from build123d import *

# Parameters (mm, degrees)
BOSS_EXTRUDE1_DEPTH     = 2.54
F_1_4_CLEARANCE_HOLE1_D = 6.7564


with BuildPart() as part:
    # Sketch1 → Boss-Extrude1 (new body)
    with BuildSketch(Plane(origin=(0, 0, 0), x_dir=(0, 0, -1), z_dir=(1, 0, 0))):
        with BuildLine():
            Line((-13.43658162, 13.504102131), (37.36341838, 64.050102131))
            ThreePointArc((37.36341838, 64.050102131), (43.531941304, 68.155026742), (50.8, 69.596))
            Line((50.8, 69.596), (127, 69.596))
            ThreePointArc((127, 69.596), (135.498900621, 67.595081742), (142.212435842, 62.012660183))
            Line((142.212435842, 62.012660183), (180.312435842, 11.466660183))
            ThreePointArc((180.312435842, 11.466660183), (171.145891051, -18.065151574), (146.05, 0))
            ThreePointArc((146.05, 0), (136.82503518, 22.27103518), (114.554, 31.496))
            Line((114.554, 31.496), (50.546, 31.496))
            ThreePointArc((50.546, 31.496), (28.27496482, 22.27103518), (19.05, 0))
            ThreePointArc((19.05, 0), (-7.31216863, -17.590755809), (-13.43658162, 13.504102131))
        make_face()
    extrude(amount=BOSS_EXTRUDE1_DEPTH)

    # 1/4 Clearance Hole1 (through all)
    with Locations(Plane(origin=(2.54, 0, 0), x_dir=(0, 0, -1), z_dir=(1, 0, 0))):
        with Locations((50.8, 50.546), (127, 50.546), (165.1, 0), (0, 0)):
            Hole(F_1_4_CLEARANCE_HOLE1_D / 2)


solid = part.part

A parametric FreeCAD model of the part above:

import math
import FreeCAD as App
import Part
import Sketcher

V = App.Vector
Q = App.Units.Quantity

doc = App.newDocument("Part")
body = doc.addObject("PartDesign::Body", "Body")

# Sketch on YZ plane
sketch1 = body.newObject("Sketcher::SketchObject", "Sketch")
sketch1.AttachmentSupport = (doc.getObject("YZ_Plane"), [""])
sketch1.MapMode = "FlatFace"
sketch1.addGeometry([
    Part.LineSegment(V(64.050102, -37.363418, 0), V(13.504102, 13.436582, 0)),  # 0
    Part.ArcOfCircle(Part.Circle(V(0, 0, 0), V(0, 0, 1), 19.05), math.radians(44.856402), math.radians(270)),  # 1
    Part.ArcOfCircle(Part.Circle(V(0, -50.546, 0), V(0, 0, 1), 31.496), math.radians(0), math.radians(90)),  # 2
    Part.LineSegment(V(31.496, -50.546, 0), V(31.496, -114.554, 0)),  # 3
    Part.ArcOfCircle(Part.Circle(V(0, -114.554, 0), V(0, 0, 1), 31.496), math.radians(-90), math.radians(0)),  # 4
    Part.ArcOfCircle(Part.Circle(V(0, -165.1, 0), V(0, 0, 1), 19.05), math.radians(90), math.radians(307.007849)),  # 5
    Part.LineSegment(V(11.46666, -180.312436, 0), V(62.01266, -142.212436, 0)),  # 6
    Part.ArcOfCircle(Part.Circle(V(50.546, -127, 0), V(0, 0, 1), 19.05), math.radians(-52.992151), math.radians(0)),  # 7
    Part.LineSegment(V(69.596, -127, 0), V(69.596, -50.8, 0)),  # 8
    Part.ArcOfCircle(Part.Circle(V(50.546, -50.8, 0), V(0, 0, 1), 19.05), math.radians(0), math.radians(44.856402)),  # 9
], False)
sketch1.addConstraint([
    Sketcher.Constraint("Tangent", 0, 2, 1, 1),
    Sketcher.Constraint("Tangent", 1, 2, 2, 2),
    Sketcher.Constraint("Tangent", 2, 1, 3, 1),
    Sketcher.Constraint("Tangent", 3, 2, 4, 2),
    Sketcher.Constraint("Tangent", 4, 1, 5, 1),
    Sketcher.Constraint("Tangent", 5, 2, 6, 1),
    Sketcher.Constraint("Tangent", 6, 2, 7, 1),
    Sketcher.Constraint("Tangent", 7, 2, 8, 1),
    Sketcher.Constraint("Tangent", 8, 2, 9, 1),
    Sketcher.Constraint("Tangent", 9, 2, 0, 1),
    Sketcher.Constraint("Vertical", 3),
    Sketcher.Constraint("Vertical", 8),
    Sketcher.Constraint("Coincident", 1, 3, -1, 1),
    Sketcher.Constraint("Equal", 2, 4),
    Sketcher.Constraint("Equal", 1, 5),
    Sketcher.Constraint("Equal", 5, 7),
    Sketcher.Constraint("Equal", 7, 9),
    Sketcher.Constraint("PointOnObject", 2, 3, -2),
    Sketcher.Constraint("PointOnObject", 5, 3, -2),
    Sketcher.Constraint("DistanceY", 8, 1, 8, 2, Q("3 in")),
    Sketcher.Constraint("Radius", 1, Q("0.75 in")),
    Sketcher.Constraint("Radius", 2, Q("1.24 in")),
    Sketcher.Constraint("DistanceY", 7, 3, -1, 1, Q("5 in")),
    Sketcher.Constraint("DistanceY", 3, 2, 3, 1, Q("2.52 in")),
    Sketcher.Constraint("DistanceX", 3, 2, 7, 2, Q("1.5 in")),
])
pad1 = body.newObject("PartDesign::Pad", "Pad")
pad1.Profile = sketch1
pad1.Length = Q("0.1 in")

# Sketch on YZ plane
sketch2 = body.newObject("Sketcher::SketchObject", "Sketch001")
sketch2.AttachmentSupport = (doc.getObject("YZ_Plane"), [""])
sketch2.MapMode = "FlatFace"
sketch2.AttachmentOffset = App.Placement(V(0, 0, 0.1 * 25.4), App.Rotation())
sketch2.addGeometry([
    Part.Circle(V(50.546, -50.8, 0), V(0, 0, 1), 3.3782),
    Part.Circle(V(50.546, -127, 0), V(0, 0, 1), 3.3782),
    Part.Circle(V(0, -165.1, 0), V(0, 0, 1), 3.3782),
    Part.Circle(V(0, 0, 0), V(0, 0, 1), 3.3782),
], False)
sketch2.addConstraint([
    Sketcher.Constraint("Coincident", 3, 3, -1, 1),
    Sketcher.Constraint("Equal", 0, 1),
    Sketcher.Constraint("Equal", 1, 2),
    Sketcher.Constraint("Equal", 2, 3),
    Sketcher.Constraint("PointOnObject", 2, 3, -2),
    Sketcher.Constraint("Vertical", 0, 3, 1, 3),
    Sketcher.Constraint("Diameter", 0, Q("0.266 in")),
    Sketcher.Constraint("DistanceY", 0, 3, -1, 1, Q("2 in")),
    Sketcher.Constraint("DistanceY", 1, 3, -1, 1, Q("5 in")),
    Sketcher.Constraint("DistanceY", 2, 3, -1, 1, Q("6.5 in")),
    Sketcher.Constraint("DistanceX", -1, 1, 0, 3, Q("1.99 in")),
])
doc.recompute()
hole = body.newObject("PartDesign::Hole", "Hole")
hole.Profile = sketch2
hole.ThreadType = "None"
hole.Diameter = Q("0.266 in")
hole.DepthType = "ThroughAll"

doc.recompute()
